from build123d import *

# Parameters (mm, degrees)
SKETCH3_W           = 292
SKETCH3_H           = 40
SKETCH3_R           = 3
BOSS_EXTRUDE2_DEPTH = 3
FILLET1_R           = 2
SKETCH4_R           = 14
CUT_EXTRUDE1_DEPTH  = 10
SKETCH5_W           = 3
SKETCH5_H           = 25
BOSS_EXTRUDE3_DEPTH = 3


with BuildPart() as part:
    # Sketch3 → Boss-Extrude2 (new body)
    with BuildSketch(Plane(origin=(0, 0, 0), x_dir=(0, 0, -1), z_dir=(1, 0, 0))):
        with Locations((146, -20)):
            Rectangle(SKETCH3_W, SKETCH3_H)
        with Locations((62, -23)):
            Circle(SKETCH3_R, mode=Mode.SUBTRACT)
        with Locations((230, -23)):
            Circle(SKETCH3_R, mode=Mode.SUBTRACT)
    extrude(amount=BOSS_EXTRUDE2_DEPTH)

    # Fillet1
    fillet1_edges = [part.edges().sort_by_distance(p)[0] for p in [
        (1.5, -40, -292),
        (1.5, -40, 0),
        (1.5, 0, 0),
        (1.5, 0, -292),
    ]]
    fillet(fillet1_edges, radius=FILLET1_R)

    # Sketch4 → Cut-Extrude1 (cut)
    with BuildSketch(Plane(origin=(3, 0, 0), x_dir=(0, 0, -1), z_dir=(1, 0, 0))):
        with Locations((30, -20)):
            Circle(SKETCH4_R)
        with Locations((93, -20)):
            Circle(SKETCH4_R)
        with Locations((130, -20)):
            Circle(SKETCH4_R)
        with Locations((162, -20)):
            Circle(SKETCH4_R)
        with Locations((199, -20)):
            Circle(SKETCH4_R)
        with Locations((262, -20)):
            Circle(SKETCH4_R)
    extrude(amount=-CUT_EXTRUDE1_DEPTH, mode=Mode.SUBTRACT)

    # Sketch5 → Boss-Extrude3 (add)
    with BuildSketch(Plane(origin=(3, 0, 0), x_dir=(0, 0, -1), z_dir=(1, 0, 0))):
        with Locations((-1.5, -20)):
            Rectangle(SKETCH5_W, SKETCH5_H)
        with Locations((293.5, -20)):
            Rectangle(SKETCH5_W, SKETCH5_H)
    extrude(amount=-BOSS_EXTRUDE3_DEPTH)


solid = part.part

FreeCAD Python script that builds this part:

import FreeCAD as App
import Part
import Sketcher


def edges_at(feature, points):
    """Names of the edges that pass closest to the given points."""
    edges = feature.Shape.Edges
    near = lambda p: min(range(len(edges)), key=lambda i: edges[i].distToShape(Part.Vertex(*p))[0])
    return sorted({f"Edge{near(p) + 1}" for p in points})


def add_polygon(sketch, points):
    """Adds a closed chain of lines whose ends are joined by coincident constraints."""
    first, n = sketch.GeometryCount, len(points)
    for a, b in zip(points, points[1:] + points[:1]):
        sketch.addGeometry(Part.LineSegment(App.Vector(*a, 0), App.Vector(*b, 0)), False)
    for i in range(n):
        sketch.addConstraint(Sketcher.Constraint("Coincident", first + i, 2, first + (i + 1) % n, 1))

doc = App.newDocument("Part")
params = doc.addObject("Spreadsheet::Sheet", "Params")
for row, (alias, value) in enumerate([
    ("sketch1_diameter", "6 mm"),
    ("sketch1_width", "40 mm"),
    ("sketch1_height", "292 mm"),
    ("pad1_length", "3 mm"),
    ("fillet_radius", "2 mm"),
    ("sketch2_diameter", "28 mm"),
    ("pocket1_length", "10 mm"),
    ("sketch3_width", "25 mm"),
    ("sketch3_height", "3 mm"),
    ("pad2_length", "3 mm"),
], start=1):
    params.set(f"A{row}", alias)
    params.set(f"B{row}", "=" + value)
    params.setAlias(f"B{row}", alias)

body = doc.addObject("PartDesign::Body", "Body")

sketch1 = body.newObject("Sketcher::SketchObject", "Sketch")
sketch1.AttachmentSupport = (doc.getObject("YZ_Plane"), [""])
sketch1.MapMode = "FlatFace"
add_polygon(sketch1, [(0, 0), (-40, 0), (-40, -292), (0, -292)])
sketch1.addGeometry(Part.Circle(App.Vector(-23, -62, 0), App.Vector(0, 0, 1), 3), False)
sketch1.addGeometry(Part.Circle(App.Vector(-23, -230, 0), App.Vector(0, 0, 1), 3), False)
sketch1.addConstraint([
    Sketcher.Constraint("Horizontal", 0),
    Sketcher.Constraint("Vertical", 1),
    Sketcher.Constraint("Horizontal", 2),
    Sketcher.Constraint("Vertical", 3),
    Sketcher.Constraint("Coincident", 3, 2, -1, 1),
    Sketcher.Constraint("Equal", 4, 5),
    Sketcher.Constraint("Vertical", 4, 3, 5, 3),
    Sketcher.Constraint("Diameter", 4, 6.0),
    Sketcher.Constraint("DistanceX", 0, 2, 0, 1, 40.0),
    Sketcher.Constraint("DistanceY", 1, 2, 1, 1, 292.0),
    Sketcher.Constraint("DistanceX", 4, 3, -1, 1, 23.0),
    Sketcher.Constraint("DistanceY", 4, 3, -1, 1, 62.0),
    Sketcher.Constraint("DistanceY", 5, 3, -1, 1, 230.0),
])
sketch1.setExpression("Constraints[11]", "Params.sketch1_diameter")
sketch1.setExpression("Constraints[12]", "Params.sketch1_width")
sketch1.setExpression("Constraints[13]", "Params.sketch1_height")
pad1 = body.newObject("PartDesign::Pad", "Pad")
pad1.Profile = sketch1
pad1.setExpression("Length", "Params.pad1_length")
doc.recompute()

fillet = body.newObject("PartDesign::Fillet", "Fillet")
fillet.Base = (pad1, edges_at(pad1, [
    (1.5, -40, -292),
    (1.5, -40, 0),
    (1.5, 0, 0),
    (1.5, 0, -292),
]))
fillet.setExpression("Radius", "Params.fillet_radius")

sketch2 = body.newObject("Sketcher::SketchObject", "Sketch001")
sketch2.AttachmentSupport = (doc.getObject("YZ_Plane"), [""])
sketch2.MapMode = "FlatFace"
sketch2.AttachmentOffset = App.Placement(App.Vector(0, 0, 3), App.Rotation())
sketch2.addGeometry([
    Part.Circle(App.Vector(-20, -30, 0), App.Vector(0, 0, 1), 14),
    Part.Circle(App.Vector(-20, -93, 0), App.Vector(0, 0, 1), 14),
    Part.Circle(App.Vector(-20, -130, 0), App.Vector(0, 0, 1), 14),
    Part.Circle(App.Vector(-20, -162, 0), App.Vector(0, 0, 1), 14),
    Part.Circle(App.Vector(-20, -199, 0), App.Vector(0, 0, 1), 14),
    Part.Circle(App.Vector(-20, -262, 0), App.Vector(0, 0, 1), 14),
], False)
sketch2.addConstraint([
    Sketcher.Constraint("Equal", 0, 1),
    Sketcher.Constraint("Equal", 1, 2),
    Sketcher.Constraint("Equal", 2, 3),
    Sketcher.Constraint("Equal", 3, 4),
    Sketcher.Constraint("Equal", 4, 5),
    Sketcher.Constraint("Vertical", 0, 3, 1, 3),
    Sketcher.Constraint("Vertical", 1, 3, 2, 3),
    Sketcher.Constraint("Vertical", 2, 3, 3, 3),
    Sketcher.Constraint("Vertical", 3, 3, 4, 3),
    Sketcher.Constraint("Vertical", 4, 3, 5, 3),
    Sketcher.Constraint("Diameter", 0, 28.0),
    Sketcher.Constraint("DistanceX", 0, 3, -1, 1, 20.0),
    Sketcher.Constraint("DistanceY", 0, 3, -1, 1, 30.0),
    Sketcher.Constraint("DistanceY", 1, 3, -1, 1, 93.0),
    Sketcher.Constraint("DistanceY", 2, 3, -1, 1, 130.0),
    Sketcher.Constraint("DistanceY", 3, 3, -1, 1, 162.0),
    Sketcher.Constraint("DistanceY", 4, 3, -1, 1, 199.0),
    Sketcher.Constraint("DistanceY", 5, 3, -1, 1, 262.0),
])
sketch2.setExpression("Constraints[10]", "Params.sketch2_diameter")
pocket1 = body.newObject("PartDesign::Pocket", "Pocket")
pocket1.Profile = sketch2
pocket1.setExpression("Length", "Params.pocket1_length")

sketch3 = body.newObject("Sketcher::SketchObject", "Sketch002")
sketch3.AttachmentSupport = (doc.getObject("YZ_Plane"), [""])
sketch3.MapMode = "FlatFace"
sketch3.AttachmentOffset = App.Placement(App.Vector(0, 0, 3), App.Rotation())
add_polygon(sketch3, [(-7.5, 3), (-32.5, 3), (-32.5, 0), (-7.5, 0)])
add_polygon(sketch3, [(-7.5, -292), (-32.5, -292), (-32.5, -295), (-7.5, -295)])
sketch3.addConstraint([
    Sketcher.Constraint("Horizontal", 0),
    Sketcher.Constraint("Vertical", 1),
    Sketcher.Constraint("Horizontal", 2),
    Sketcher.Constraint("Vertical", 3),
    Sketcher.Constraint("Horizontal", 4),
    Sketcher.Constraint("Vertical", 5),
    Sketcher.Constraint("Horizontal", 6),
    Sketcher.Constraint("Vertical", 7),
    Sketcher.Constraint("PointOnObject", 1, 2, -1),
    Sketcher.Constraint("Vertical", 1, 2, 4, 2),
    Sketcher.Constraint("Vertical", 3, 2, 6, 2),
    Sketcher.Constraint("Equal", 3, 5),
    Sketcher.Constraint("DistanceX", 0, 2, 0, 1, 25.0),
    Sketcher.Constraint("DistanceY", 1, 2, 1, 1, 3.0),
    Sketcher.Constraint("DistanceY", 4, 2, -1, 1, 292.0),
    Sketcher.Constraint("DistanceX", 0, 2, -1, 1, 32.5),
])
sketch3.setExpression("Constraints[20]", "Params.sketch3_width")
sketch3.setExpression("Constraints[21]", "Params.sketch3_height")
pad2 = body.newObject("PartDesign::Pad", "Pad001")
pad2.Profile = sketch3
pad2.setExpression("Length", "Params.pad2_length")
pad2.Reversed = True

doc.recompute()
